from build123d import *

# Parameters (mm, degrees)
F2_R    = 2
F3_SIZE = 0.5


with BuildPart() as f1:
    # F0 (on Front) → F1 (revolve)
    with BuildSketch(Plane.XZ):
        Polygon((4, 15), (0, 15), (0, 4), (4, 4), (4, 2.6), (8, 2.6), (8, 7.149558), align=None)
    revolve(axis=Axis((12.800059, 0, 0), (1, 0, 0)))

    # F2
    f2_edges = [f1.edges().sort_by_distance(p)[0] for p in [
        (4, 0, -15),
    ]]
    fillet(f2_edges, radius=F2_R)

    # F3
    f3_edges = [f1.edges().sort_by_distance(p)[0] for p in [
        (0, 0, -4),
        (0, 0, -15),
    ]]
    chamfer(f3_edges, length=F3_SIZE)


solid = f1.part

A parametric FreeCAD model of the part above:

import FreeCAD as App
import Part
import Sketcher
from FreeCAD import Vector
Q = App.Units.Quantity


def edges_at(feature, points):
    """Names of the edges that pass closest to the given points."""
    edges = feature.Shape.Edges
    near = lambda p: min(range(len(edges)), key=lambda i: edges[i].distToShape(Part.Vertex(*p))[0])
    return sorted({f"Edge{near(p) + 1}" for p in points})


def add_polygon(sketch, points):
    """Adds a closed chain of lines whose ends are joined by coincident constraints."""
    first, n = sketch.GeometryCount, len(points)
    for a, b in zip(points, points[1:] + points[:1]):
        sketch.addGeometry(Part.LineSegment(App.Vector(*a, 0), App.Vector(*b, 0)), False)
    for i in range(n):
        sketch.addConstraint(Sketcher.Constraint("Coincident", first + i, 2, first + (i + 1) % n, 1))

doc = App.newDocument("Part")
body = doc.addObject("PartDesign::Body", "Body")

# Sketch on XZ plane
sketch1 = body.newObject("Sketcher::SketchObject", "Sketch")
sketch1.AttachmentSupport = (doc.getObject("XZ_Plane"), [""])
sketch1.MapMode = "FlatFace"
add_polygon(sketch1, [(4, 15), (0, 15), (0, 4), (4, 4), (4, 2.6), (8, 2.6), (8, 7.1)])  # lines 0-6
sketch1.addConstraint([
    Sketcher.Constraint("Horizontal", 0),
    Sketcher.Constraint("Vertical", 1),
    Sketcher.Constraint("Horizontal", 2),
    Sketcher.Constraint("Vertical", 3),
    Sketcher.Constraint("Horizontal", 4),
    Sketcher.Constraint("Vertical", 5),
    Sketcher.Constraint("PointOnObject", 0, 2, -2),
    Sketcher.Constraint("Vertical", 3, 2, 6, 2),
    Sketcher.Constraint("Equal", 2, 4),
    Sketcher.Constraint("DistanceX", 0, 2, 0, 1, 4.0),
    Sketcher.Constraint("DistanceY", 1, 2, 1, 1, 11.0),
    Sketcher.Constraint("Angle", 6, Q("117 deg")),
    Sketcher.Constraint("DistanceY", 3, 2, 3, 1, 1.4),
    Sketcher.Constraint("DistanceY", -1, 1, 0, 2, 15.0),
])
revolution = body.newObject("PartDesign::Revolution", "Revolution")
revolution.Profile = sketch1
revolution.ReferenceAxis = (sketch1, ["H_Axis"])
revolution.Angle = 360
doc.recompute()

fillet = body.newObject("PartDesign::Fillet", "Fillet")
fillet.Base = (revolution, edges_at(revolution, [(4, 0, -15)]))
fillet.Radius = 2
doc.recompute()

chamfer = body.newObject("PartDesign::Chamfer", "Chamfer")
chamfer.Base = (fillet, edges_at(fillet, [(0, 0, -4), (0, 0, -15)]))
chamfer.Size = 0.5

doc.recompute()
